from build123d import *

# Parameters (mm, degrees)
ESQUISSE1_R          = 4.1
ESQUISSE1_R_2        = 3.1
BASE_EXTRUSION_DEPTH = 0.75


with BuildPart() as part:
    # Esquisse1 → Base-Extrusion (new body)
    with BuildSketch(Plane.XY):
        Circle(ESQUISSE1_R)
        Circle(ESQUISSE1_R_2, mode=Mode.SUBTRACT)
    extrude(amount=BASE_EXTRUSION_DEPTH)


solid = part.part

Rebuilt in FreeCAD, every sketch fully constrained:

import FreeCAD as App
import Part
import Sketcher

doc = App.newDocument("Part")
body = doc.addObject("PartDesign::Body", "Body")

# Sketch on XY plane
sketch1 = body.newObject("Sketcher::SketchObject", "Sketch")
sketch1.AttachmentSupport = (doc.getObject("XY_Plane"), [""])
sketch1.MapMode = "FlatFace"
sketch1.addGeometry([
    Part.Circle(App.Vector(0, 0, 0), App.Vector(0, 0, 1), 4.1),
    Part.Circle(App.Vector(0, 0, 0), App.Vector(0, 0, 1), 3.1),
], False)
sketch1.addConstraint([
    Sketcher.Constraint("Coincident", 0, 3, -1, 1),
    Sketcher.Constraint("Coincident", 1, 3, -1, 1),
    Sketcher.Constraint("Diameter", 0, 8.2),
    Sketcher.Constraint("Diameter", 1, 6.2),
])
pad1 = body.newObject("PartDesign::Pad", "Pad")
pad1.Profile = sketch1
pad1.Length = 0.75

doc.recompute()
